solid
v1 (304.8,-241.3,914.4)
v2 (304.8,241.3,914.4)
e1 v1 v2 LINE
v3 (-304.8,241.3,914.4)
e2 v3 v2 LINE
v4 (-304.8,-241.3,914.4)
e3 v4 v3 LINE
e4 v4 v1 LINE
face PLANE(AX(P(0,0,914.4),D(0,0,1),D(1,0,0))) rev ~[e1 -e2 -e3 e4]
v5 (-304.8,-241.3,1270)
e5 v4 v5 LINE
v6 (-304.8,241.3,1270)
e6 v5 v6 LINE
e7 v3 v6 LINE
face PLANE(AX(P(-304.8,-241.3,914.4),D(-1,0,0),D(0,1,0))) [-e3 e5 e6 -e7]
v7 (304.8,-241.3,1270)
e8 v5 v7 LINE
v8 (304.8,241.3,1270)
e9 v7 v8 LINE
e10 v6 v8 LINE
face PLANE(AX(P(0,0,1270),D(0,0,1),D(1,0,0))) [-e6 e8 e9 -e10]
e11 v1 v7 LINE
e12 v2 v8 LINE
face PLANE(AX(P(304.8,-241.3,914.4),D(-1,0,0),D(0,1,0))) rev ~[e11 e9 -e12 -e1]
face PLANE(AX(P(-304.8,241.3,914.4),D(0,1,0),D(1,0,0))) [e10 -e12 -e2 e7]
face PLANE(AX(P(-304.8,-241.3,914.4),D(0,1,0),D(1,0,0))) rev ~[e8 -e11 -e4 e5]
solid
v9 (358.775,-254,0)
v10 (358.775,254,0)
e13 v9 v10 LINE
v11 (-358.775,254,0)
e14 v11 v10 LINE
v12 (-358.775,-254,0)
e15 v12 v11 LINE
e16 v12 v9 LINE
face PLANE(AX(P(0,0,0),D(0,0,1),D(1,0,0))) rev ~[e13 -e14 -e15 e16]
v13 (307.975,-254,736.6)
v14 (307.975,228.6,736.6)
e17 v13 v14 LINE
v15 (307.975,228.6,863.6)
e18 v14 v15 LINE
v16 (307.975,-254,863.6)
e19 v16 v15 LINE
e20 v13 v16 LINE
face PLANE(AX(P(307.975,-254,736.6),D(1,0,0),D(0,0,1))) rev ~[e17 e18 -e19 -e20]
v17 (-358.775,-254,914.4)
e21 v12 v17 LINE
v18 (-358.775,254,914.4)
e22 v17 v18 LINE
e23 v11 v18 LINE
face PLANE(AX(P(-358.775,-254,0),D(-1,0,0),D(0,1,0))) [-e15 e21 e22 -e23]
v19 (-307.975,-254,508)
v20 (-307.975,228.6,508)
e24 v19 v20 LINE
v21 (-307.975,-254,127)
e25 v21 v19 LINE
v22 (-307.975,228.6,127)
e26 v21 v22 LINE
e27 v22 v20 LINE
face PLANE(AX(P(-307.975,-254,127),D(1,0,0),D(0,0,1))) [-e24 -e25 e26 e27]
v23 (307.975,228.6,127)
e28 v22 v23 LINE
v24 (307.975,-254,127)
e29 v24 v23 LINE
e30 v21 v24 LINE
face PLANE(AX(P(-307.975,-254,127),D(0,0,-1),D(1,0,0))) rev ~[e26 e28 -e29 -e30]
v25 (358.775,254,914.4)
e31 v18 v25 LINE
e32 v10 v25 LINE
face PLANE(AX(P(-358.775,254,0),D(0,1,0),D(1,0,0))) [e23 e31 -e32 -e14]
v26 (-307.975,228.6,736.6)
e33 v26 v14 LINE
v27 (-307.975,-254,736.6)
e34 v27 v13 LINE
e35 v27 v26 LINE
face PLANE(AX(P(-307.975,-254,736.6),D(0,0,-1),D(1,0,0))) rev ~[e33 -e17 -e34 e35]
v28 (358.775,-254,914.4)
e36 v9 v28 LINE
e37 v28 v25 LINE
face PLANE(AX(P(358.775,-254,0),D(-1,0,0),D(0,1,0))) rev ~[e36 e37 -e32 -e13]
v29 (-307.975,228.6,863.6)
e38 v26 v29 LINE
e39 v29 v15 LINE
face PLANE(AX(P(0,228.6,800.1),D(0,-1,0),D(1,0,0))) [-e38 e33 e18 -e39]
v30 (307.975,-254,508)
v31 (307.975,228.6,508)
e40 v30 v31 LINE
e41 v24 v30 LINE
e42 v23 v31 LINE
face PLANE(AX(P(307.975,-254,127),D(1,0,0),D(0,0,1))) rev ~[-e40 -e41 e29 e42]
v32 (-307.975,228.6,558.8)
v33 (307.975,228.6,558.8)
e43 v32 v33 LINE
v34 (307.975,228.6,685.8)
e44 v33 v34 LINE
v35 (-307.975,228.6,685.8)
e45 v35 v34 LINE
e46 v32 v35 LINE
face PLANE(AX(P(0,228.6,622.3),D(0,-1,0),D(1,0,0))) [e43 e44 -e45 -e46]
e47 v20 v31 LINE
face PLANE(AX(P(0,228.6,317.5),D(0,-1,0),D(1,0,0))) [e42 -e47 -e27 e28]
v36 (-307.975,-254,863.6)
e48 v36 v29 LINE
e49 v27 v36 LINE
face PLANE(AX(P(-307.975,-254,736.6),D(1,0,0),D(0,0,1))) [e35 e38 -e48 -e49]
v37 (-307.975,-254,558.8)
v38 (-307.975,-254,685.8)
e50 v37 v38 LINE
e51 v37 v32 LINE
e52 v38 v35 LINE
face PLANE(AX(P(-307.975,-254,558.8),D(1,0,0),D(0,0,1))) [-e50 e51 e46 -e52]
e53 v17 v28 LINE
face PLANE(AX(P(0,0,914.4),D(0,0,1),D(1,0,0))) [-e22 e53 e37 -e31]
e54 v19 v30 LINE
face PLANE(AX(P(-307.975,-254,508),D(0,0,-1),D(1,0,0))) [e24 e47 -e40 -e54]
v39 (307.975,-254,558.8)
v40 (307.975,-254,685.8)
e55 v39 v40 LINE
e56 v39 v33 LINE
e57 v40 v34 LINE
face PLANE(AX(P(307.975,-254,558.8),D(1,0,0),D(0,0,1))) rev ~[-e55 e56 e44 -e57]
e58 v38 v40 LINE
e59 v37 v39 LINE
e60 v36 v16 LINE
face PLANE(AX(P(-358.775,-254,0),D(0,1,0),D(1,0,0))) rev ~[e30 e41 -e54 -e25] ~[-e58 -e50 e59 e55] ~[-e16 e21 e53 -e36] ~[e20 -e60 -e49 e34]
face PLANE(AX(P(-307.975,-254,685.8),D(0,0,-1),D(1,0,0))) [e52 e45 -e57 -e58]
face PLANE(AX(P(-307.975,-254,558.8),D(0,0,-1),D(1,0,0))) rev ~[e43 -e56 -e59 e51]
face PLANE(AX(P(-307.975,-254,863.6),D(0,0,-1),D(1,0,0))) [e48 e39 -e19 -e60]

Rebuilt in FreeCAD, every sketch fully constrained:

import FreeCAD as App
import Part
import Sketcher

V = App.Vector
Q = App.Units.Quantity


def add_polygon(sketch, points):
    """Adds a closed chain of lines whose ends are joined by coincident constraints."""
    first, n = sketch.GeometryCount, len(points)
    for a, b in zip(points, points[1:] + points[:1]):
        sketch.addGeometry(Part.LineSegment(App.Vector(*a, 0), App.Vector(*b, 0)), False)
    for i in range(n):
        sketch.addConstraint(Sketcher.Constraint("Coincident", first + i, 2, first + (i + 1) % n, 1))

doc = App.newDocument("Part")
params = doc.addObject("Spreadsheet::Sheet", "Params")
for row, (alias, value) in enumerate([
    ("sketch1_height", "20 in"),
    ("sketch1_width", "28.25 in"),
    ("pad1_length", "36 in"),
    ("sketch2_height", "5 in"),
    ("sketch2_height2", "15 in"),
    ("sketch2_width", "24.25 in"),
    ("pocket1_length", "19 in"),
    ("sketch3_width", "24 in"),
    ("sketch3_height", "19 in"),
    ("pad2_length", "14 in"),
], start=1):
    params.set(f"A{row}", alias)
    params.set(f"B{row}", "=" + value)
    params.setAlias(f"B{row}", alias)

body = doc.addObject("PartDesign::Body", "Body")

# Sketch on XY plane
sketch1 = doc.addObject("Sketcher::SketchObject", "Sketch")
body.addObject(sketch1)
sketch1.AttachmentSupport = (doc.XY_Plane, [""])
sketch1.MapMode = "FlatFace"
add_polygon(sketch1, [(-358.775, 254), (-358.775, -254), (358.775, -254), (358.775, 254)])  # lines 0-3
sketch1.addConstraint([
    Sketcher.Constraint("Vertical", 0),
    Sketcher.Constraint("Horizontal", 1),
    Sketcher.Constraint("Vertical", 2),
    Sketcher.Constraint("Horizontal", 3),
    Sketcher.Constraint("Symmetric", 0, 2, 2, 2, -1, 1),
    Sketcher.Constraint("DistanceY", 0, 2, 0, 1, Q("20 in")),
    Sketcher.Constraint("DistanceX", 1, 1, 1, 2, Q("28.25 in")),
])
sketch1.setExpression("Constraints[9]", "Params.sketch1_height")
sketch1.setExpression("Constraints[10]", "Params.sketch1_width")
pad1 = doc.addObject("PartDesign::Pad", "Pad")
body.addObject(pad1)
pad1.Profile = sketch1
pad1.setExpression("Length", "Params.pad1_length")

# Sketch on XZ plane
sketch2 = doc.addObject("Sketcher::SketchObject", "Sketch001")
body.addObject(sketch2)
sketch2.AttachmentSupport = (doc.XZ_Plane, [""])
sketch2.MapMode = "FlatFace"
sketch2.AttachmentOffset = App.Placement(V(0, 0, 10 * 25.4), App.Rotation())
add_polygon(sketch2, [(-307.975, 863.6), (-307.975, 736.6), (307.975, 736.6), (307.975, 863.6)])  # lines 0-3
add_polygon(sketch2, [(-307.975, 508), (-307.975, 127), (307.975, 127), (307.975, 508)])  # lines 4-7
add_polygon(sketch2, [(-307.975, 685.8), (-307.975, 558.8), (307.975, 558.8), (307.975, 685.8)])  # lines 8-11
sketch2.addConstraint([
    Sketcher.Constraint("Vertical", 0),
    Sketcher.Constraint("Horizontal", 1),
    Sketcher.Constraint("Vertical", 2),
    Sketcher.Constraint("Horizontal", 3),
    Sketcher.Constraint("Vertical", 4),
    Sketcher.Constraint("Horizontal", 5),
    Sketcher.Constraint("Vertical", 6),
    Sketcher.Constraint("Horizontal", 7),
    Sketcher.Constraint("Vertical", 8),
    Sketcher.Constraint("Horizontal", 9),
    Sketcher.Constraint("Vertical", 10),
    Sketcher.Constraint("Horizontal", 11),
    Sketcher.Constraint("Vertical", 3, 2, 4, 2),
    Sketcher.Constraint("Vertical", 2, 2, 5, 2),
    Sketcher.Constraint("Vertical", 7, 2, 8, 2),
    Sketcher.Constraint("Vertical", 6, 2, 9, 2),
    Sketcher.Constraint("Equal", 2, 8),
    Sketcher.Constraint("DistanceY", 0, 2, 0, 1, Q("5 in")),
    Sketcher.Constraint("DistanceY", 4, 2, 4, 1, Q("15 in")),
    Sketcher.Constraint("DistanceY", -1, 1, 0, 2, Q("29 in")),
    Sketcher.Constraint("DistanceY", -1, 1, 4, 2, Q("5 in")),
    Sketcher.Constraint("DistanceY", -1, 1, 8, 2, Q("22 in")),
    Sketcher.Constraint("DistanceX", 1, 1, 1, 2, Q("24.25 in")),
    Sketcher.Constraint("DistanceX", 0, 2, -1, 1, Q("12.125 in")),
])
sketch2.setExpression("Constraints[29]", "Params.sketch2_height")
sketch2.setExpression("Constraints[30]", "Params.sketch2_height2")
sketch2.setExpression("Constraints[34]", "Params.sketch2_width")
pocket1 = doc.addObject("PartDesign::Pocket", "Pocket")
body.addObject(pocket1)
pocket1.Profile = sketch2
pocket1.setExpression("Length", "Params.pocket1_length")
body2 = doc.addObject("PartDesign::Body", "Body001")

# Sketch on XY plane
sketch3 = doc.addObject("Sketcher::SketchObject", "Sketch002")
body2.addObject(sketch3)
sketch3.AttachmentSupport = (doc.getObject("XY_Plane001"), [""])
sketch3.MapMode = "FlatFace"
sketch3.AttachmentOffset = App.Placement(V(0, 0, 36 * 25.4), App.Rotation())
add_polygon(sketch3, [(-304.8, 241.3), (-304.8, -241.3), (304.8, -241.3), (304.8, 241.3)])  # lines 0-3
sketch3.addConstraint([
    Sketcher.Constraint("Vertical", 0),
    Sketcher.Constraint("Horizontal", 1),
    Sketcher.Constraint("Vertical", 2),
    Sketcher.Constraint("Horizontal", 3),
    Sketcher.Constraint("Symmetric", 0, 2, 2, 2, -1, 1),
    Sketcher.Constraint("DistanceX", 1, 1, 1, 2, Q("24 in")),
    Sketcher.Constraint("DistanceY", 0, 2, 0, 1, Q("19 in")),
])
sketch3.setExpression("Constraints[9]", "Params.sketch3_width")
sketch3.setExpression("Constraints[10]", "Params.sketch3_height")
pad2 = doc.addObject("PartDesign::Pad", "Pad001")
body2.addObject(pad2)
pad2.Profile = sketch3
pad2.setExpression("Length", "Params.pad2_length")

doc.recompute()
